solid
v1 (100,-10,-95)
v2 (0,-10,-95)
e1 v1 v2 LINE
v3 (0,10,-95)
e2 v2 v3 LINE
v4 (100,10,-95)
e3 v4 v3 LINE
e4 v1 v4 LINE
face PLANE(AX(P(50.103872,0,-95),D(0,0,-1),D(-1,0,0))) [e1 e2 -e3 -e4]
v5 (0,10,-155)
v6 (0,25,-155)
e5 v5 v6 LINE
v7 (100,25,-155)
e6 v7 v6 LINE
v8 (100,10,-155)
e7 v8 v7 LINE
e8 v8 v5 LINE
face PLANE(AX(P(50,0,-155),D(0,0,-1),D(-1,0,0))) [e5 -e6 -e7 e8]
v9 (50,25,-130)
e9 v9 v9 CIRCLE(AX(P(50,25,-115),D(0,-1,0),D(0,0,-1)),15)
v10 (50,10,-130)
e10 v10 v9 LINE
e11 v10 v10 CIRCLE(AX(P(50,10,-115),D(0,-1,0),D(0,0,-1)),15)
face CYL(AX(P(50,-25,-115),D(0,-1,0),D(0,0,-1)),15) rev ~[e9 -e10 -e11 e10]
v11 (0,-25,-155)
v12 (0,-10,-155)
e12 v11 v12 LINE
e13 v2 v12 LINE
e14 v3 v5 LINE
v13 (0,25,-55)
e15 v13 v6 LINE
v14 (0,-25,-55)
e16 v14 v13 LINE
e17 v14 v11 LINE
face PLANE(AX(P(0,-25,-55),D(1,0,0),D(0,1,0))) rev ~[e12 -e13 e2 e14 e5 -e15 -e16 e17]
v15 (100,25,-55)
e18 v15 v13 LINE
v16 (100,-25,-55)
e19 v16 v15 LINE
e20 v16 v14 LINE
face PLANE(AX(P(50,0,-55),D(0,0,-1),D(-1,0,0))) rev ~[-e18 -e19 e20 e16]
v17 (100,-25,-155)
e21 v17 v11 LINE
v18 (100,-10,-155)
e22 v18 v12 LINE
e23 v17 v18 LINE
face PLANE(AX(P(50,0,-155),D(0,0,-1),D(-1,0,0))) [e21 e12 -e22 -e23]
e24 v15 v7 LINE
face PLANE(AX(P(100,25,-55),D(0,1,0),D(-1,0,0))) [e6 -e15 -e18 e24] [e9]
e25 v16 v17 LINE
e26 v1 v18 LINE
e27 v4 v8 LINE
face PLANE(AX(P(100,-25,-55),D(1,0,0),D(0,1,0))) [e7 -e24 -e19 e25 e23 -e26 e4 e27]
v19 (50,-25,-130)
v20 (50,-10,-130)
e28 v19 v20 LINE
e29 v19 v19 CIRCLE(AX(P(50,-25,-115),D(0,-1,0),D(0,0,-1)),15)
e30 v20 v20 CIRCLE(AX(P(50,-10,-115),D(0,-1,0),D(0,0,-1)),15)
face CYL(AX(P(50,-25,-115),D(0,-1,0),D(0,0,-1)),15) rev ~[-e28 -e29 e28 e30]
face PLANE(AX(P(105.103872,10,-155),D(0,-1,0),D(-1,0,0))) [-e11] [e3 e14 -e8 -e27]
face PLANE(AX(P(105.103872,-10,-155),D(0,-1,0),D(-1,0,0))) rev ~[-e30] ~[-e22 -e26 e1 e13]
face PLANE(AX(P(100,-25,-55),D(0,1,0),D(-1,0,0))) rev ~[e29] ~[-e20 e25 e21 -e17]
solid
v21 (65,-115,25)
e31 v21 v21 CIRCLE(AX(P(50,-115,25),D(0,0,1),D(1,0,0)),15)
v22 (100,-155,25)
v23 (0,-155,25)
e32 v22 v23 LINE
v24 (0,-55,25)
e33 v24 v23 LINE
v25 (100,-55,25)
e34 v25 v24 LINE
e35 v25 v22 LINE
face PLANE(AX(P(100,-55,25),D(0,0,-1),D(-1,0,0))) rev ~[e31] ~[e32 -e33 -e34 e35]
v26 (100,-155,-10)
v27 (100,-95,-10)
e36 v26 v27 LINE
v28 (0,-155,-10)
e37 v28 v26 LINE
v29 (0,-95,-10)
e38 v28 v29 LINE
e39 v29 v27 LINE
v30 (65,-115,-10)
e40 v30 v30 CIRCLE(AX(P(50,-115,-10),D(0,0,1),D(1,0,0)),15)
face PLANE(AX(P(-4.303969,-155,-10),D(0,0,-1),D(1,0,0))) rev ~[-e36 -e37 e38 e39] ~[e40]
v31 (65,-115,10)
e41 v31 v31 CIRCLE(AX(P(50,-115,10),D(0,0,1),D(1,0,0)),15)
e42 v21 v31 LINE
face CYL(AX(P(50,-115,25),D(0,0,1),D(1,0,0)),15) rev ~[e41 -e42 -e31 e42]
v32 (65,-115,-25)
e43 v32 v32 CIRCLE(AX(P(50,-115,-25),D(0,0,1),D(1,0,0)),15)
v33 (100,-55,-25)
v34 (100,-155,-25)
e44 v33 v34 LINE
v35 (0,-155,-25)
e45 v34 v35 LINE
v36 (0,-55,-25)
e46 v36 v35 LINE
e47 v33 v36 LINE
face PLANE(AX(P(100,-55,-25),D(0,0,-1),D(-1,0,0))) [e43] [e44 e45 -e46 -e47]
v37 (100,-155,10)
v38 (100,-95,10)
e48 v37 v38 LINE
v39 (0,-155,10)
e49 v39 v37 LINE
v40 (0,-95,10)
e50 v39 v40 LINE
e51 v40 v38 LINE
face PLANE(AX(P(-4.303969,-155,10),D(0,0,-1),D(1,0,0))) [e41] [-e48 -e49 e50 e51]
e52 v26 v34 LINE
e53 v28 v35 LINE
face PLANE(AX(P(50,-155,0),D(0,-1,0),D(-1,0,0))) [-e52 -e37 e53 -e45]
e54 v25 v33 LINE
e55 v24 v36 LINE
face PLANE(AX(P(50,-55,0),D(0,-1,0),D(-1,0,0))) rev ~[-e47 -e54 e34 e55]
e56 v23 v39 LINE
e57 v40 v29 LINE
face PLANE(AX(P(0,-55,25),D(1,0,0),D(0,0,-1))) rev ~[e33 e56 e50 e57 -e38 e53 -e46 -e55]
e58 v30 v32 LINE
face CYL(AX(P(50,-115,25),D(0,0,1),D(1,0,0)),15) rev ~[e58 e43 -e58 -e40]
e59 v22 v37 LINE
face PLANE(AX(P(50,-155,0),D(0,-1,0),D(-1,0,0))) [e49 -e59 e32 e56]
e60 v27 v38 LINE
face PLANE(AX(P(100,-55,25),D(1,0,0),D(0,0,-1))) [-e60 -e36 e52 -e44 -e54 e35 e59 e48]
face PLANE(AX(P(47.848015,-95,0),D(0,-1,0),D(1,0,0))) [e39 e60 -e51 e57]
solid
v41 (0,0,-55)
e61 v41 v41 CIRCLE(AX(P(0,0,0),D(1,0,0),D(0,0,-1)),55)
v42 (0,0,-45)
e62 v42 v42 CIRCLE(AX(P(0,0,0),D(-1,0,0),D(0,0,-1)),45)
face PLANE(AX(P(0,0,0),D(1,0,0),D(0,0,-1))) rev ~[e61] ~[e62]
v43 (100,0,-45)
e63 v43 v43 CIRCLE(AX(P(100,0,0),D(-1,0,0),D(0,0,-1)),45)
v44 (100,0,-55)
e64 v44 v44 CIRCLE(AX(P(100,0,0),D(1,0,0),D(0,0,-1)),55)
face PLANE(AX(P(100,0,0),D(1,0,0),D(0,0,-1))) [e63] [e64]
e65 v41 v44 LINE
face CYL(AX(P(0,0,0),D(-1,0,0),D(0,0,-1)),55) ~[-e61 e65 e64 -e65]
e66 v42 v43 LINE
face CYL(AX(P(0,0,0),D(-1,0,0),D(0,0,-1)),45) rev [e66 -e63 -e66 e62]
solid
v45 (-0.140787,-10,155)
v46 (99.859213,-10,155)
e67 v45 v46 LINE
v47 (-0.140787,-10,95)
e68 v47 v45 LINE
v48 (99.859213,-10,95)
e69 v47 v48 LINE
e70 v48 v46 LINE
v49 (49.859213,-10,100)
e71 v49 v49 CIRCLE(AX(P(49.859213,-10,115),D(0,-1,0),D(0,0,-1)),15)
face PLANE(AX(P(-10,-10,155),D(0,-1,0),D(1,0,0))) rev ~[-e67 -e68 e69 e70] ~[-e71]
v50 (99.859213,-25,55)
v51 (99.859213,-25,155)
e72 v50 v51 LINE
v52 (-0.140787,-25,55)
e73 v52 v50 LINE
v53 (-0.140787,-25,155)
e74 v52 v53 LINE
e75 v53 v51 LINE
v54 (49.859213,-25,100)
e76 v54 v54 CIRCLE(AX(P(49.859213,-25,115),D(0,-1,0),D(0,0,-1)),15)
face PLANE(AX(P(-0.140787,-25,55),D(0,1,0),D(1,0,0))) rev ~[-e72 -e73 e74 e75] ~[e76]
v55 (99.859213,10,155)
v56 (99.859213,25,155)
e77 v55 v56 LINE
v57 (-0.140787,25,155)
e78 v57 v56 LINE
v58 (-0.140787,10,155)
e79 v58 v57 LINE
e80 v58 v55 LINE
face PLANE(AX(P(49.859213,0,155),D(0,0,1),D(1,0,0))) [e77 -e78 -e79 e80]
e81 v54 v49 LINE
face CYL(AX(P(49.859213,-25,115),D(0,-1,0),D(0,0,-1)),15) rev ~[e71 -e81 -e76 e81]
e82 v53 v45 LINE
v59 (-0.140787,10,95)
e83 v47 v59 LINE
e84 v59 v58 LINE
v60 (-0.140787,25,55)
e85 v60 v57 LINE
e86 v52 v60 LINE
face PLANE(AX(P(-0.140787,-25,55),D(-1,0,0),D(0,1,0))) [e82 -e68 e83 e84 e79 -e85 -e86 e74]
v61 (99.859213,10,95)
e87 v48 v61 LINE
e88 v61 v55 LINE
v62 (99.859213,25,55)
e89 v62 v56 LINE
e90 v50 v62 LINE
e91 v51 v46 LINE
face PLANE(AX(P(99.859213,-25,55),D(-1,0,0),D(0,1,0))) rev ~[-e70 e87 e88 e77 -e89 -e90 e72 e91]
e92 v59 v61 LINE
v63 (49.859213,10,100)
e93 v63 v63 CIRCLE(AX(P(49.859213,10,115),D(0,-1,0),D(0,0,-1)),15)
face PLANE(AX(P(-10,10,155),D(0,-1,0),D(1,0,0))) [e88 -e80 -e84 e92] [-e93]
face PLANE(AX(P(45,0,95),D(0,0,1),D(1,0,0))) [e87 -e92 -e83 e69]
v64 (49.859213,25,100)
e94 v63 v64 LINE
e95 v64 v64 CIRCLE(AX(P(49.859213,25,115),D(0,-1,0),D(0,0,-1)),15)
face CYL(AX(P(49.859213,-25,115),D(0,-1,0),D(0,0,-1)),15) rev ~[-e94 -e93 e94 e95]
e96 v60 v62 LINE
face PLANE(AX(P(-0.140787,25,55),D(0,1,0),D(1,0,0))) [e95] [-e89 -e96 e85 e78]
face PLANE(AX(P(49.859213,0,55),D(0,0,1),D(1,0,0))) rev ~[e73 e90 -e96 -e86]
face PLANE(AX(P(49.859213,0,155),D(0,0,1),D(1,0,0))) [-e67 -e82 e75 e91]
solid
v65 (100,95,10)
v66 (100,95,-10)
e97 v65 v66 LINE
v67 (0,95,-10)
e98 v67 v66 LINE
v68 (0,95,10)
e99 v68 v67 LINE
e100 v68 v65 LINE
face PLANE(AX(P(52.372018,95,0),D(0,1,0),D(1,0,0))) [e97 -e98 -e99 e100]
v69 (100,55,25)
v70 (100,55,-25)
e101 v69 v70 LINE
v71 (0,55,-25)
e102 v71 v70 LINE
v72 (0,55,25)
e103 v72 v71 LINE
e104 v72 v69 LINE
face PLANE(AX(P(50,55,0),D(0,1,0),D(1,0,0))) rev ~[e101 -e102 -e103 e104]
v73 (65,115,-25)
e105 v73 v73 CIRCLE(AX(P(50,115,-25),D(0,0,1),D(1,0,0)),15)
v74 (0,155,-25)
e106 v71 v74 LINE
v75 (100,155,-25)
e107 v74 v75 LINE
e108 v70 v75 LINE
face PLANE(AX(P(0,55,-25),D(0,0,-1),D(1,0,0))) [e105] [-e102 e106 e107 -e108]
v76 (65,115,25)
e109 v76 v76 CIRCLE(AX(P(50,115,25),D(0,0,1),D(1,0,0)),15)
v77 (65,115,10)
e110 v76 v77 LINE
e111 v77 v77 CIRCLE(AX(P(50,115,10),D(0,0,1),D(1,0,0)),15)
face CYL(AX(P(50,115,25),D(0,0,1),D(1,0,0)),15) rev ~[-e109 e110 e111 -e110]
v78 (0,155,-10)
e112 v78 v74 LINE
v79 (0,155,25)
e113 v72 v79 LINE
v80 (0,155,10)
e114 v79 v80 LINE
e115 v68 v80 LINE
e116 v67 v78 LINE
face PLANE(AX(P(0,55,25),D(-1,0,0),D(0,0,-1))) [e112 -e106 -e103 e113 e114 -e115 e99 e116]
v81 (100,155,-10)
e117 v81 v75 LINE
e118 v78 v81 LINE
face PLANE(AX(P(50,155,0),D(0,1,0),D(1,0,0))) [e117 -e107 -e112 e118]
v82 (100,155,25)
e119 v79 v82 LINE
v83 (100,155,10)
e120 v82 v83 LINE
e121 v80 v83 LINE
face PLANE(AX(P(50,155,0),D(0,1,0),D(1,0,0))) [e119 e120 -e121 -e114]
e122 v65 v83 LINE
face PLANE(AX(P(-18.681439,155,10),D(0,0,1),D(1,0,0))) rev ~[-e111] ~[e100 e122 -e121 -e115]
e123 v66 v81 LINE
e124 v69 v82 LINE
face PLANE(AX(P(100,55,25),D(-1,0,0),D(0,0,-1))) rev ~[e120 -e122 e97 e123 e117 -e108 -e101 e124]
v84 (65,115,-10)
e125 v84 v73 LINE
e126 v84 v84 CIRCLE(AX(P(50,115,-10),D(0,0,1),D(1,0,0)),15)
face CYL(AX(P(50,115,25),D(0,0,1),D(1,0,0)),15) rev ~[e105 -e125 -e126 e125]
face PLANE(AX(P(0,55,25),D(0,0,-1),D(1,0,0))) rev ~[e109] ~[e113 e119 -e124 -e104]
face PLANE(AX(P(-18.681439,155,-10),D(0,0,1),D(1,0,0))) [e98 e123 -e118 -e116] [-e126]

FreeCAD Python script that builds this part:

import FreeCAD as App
import Part
import Sketcher


def faces_at(feature, points):
    """Names of the faces that lie closest to the given points."""
    faces = feature.Shape.Faces
    near = lambda p: min(range(len(faces)), key=lambda i: faces[i].distToShape(Part.Vertex(*p))[0])
    return sorted({f"Face{near(p) + 1}" for p in points})

doc = App.newDocument("Part")
body = doc.addObject("PartDesign::Body", "Body")

sketch1 = body.newObject("Sketcher::SketchObject", "Sketch")
sketch1.AttachmentSupport = (doc.getObject("YZ_Plane"), [""])
sketch1.MapMode = "FlatFace"
sketch1.addGeometry(Part.Circle(App.Vector(0, 0, 0), App.Vector(0, 0, 1), 55), False)
sketch1.addConstraint([
    Sketcher.Constraint("Coincident", 0, 3, -1, 1),
    Sketcher.Constraint("Diameter", 0, 110.0),
])
pad1 = body.newObject("PartDesign::Pad", "Pad")
pad1.Profile = sketch1
pad1.Length = 100
doc.recompute()

thickness = body.newObject("PartDesign::Thickness", "Thickness")
thickness.Base = (pad1, faces_at(pad1, [(100, 0, 0), (0, 0, 0)]))
thickness.Value = 10
thickness.Reversed = True
thickness.Join = "Intersection"
body2 = doc.addObject("PartDesign::Body", "Body001")

sketch2 = body2.newObject("Sketcher::SketchObject", "Sketch001")
sketch2.AttachmentSupport = (doc.getObject("XY_Plane001"), [""])
sketch2.MapMode = "FlatFace"
sketch2.AttachmentOffset = App.Placement(App.Vector(0, 0, -55), App.Rotation())
sketch2.addGeometry([
    Part.LineSegment(App.Vector(100, 25, 0), App.Vector(100, -25, 0)),
    Part.LineSegment(App.Vector(100, -25, 0), App.Vector(0, -25, 0)),
    Part.LineSegment(App.Vector(0, -25, 0), App.Vector(0, 25, 0)),
    Part.LineSegment(App.Vector(0, 25, 0), App.Vector(100, 25, 0)),
], False)
sketch2.addConstraint([
    Sketcher.Constraint("Coincident", 0, 2, 1, 1),
    Sketcher.Constraint("Coincident", 1, 2, 2, 1),
    Sketcher.Constraint("Coincident", 2, 2, 3, 1),
    Sketcher.Constraint("Coincident", 3, 2, 0, 1),
    Sketcher.Constraint("Vertical", 0),
    Sketcher.Constraint("Horizontal", 1),
    Sketcher.Constraint("Vertical", 2),
    Sketcher.Constraint("Horizontal", 3),
    Sketcher.Constraint("Symmetric", 1, 2, 2, 2, -1, 1),
    Sketcher.Constraint("DistanceX", 1, 2, 1, 1, 100.0),
    Sketcher.Constraint("DistanceY", 0, 2, 0, 1, 50.0),
])
pad2 = body2.newObject("PartDesign::Pad", "Pad001")
pad2.Profile = sketch2
pad2.Length = 100
pad2.Reversed = True

sketch3 = body2.newObject("Sketcher::SketchObject", "Sketch002")
sketch3.AttachmentSupport = (doc.getObject("XY_Plane001"), [""])
sketch3.MapMode = "FlatFace"
sketch3.AttachmentOffset = App.Placement(App.Vector(0, 0, -155), App.Rotation())
sketch3.addGeometry([
    Part.LineSegment(App.Vector(105, 10, 0), App.Vector(105, -10, 0)),
    Part.LineSegment(App.Vector(105, -10, 0), App.Vector(-5, -10, 0)),
    Part.LineSegment(App.Vector(-5, -10, 0), App.Vector(-5, 10, 0)),
    Part.LineSegment(App.Vector(-5, 10, 0), App.Vector(105, 10, 0)),
], False)
sketch3.addConstraint([
    Sketcher.Constraint("Coincident", 0, 2, 1, 1),
    Sketcher.Constraint("Coincident", 1, 2, 2, 1),
    Sketcher.Constraint("Coincident", 2, 2, 3, 1),
    Sketcher.Constraint("Coincident", 3, 2, 0, 1),
    Sketcher.Constraint("Vertical", 0),
    Sketcher.Constraint("Horizontal", 1),
    Sketcher.Constraint("Vertical", 2),
    Sketcher.Constraint("Horizontal", 3),
    Sketcher.Constraint("DistanceX", 1, 2, 1, 1, 110.0),
    Sketcher.Constraint("DistanceY", 0, 2, 0, 1, 20.0),
    Sketcher.Constraint("DistanceY", 0, 2, -1, 1, 10.0),
    Sketcher.Constraint("DistanceX", -1, 1, 0, 2, 105.103872),
])
pocket1 = body2.newObject("PartDesign::Pocket", "Pocket")
pocket1.Profile = sketch3
pocket1.Length = 60
pocket1.Reversed = True

sketch4 = body2.newObject("Sketcher::SketchObject", "Sketch003")
sketch4.AttachmentSupport = (doc.getObject("XZ_Plane001"), [""])
sketch4.MapMode = "FlatFace"
sketch4.AttachmentOffset = App.Placement(App.Vector(0, 0, 25), App.Rotation())
sketch4.addGeometry(Part.Circle(App.Vector(50, -115, 0), App.Vector(0, 0, 1), 15), False)
sketch4.addConstraint([
    Sketcher.Constraint("Diameter", 0, 30.0),
    Sketcher.Constraint("DistanceX", -1, 1, 0, 3, 50.0),
    Sketcher.Constraint("DistanceY", 0, 3, -1, 1, 115.0),
])
pocket2 = body2.newObject("PartDesign::Pocket", "Pocket001")
pocket2.Profile = sketch4
pocket2.Length = 60
body3 = doc.addObject("PartDesign::Body", "Body002")

sketch5 = body3.newObject("Sketcher::SketchObject", "Sketch004")
sketch5.AttachmentSupport = (doc.getObject("XY_Plane002"), [""])
sketch5.MapMode = "FlatFace"
sketch5.AttachmentOffset = App.Placement(App.Vector(0, 0, 55), App.Rotation())
sketch5.addGeometry([
    Part.LineSegment(App.Vector(0, 25, 0), App.Vector(0, -25, 0)),
    Part.LineSegment(App.Vector(0, -25, 0), App.Vector(100, -25, 0)),
    Part.LineSegment(App.Vector(100, -25, 0), App.Vector(100, 25, 0)),
    Part.LineSegment(App.Vector(100, 25, 0), App.Vector(0, 25, 0)),
], False)
sketch5.addConstraint([
    Sketcher.Constraint("Coincident", 0, 2, 1, 1),
    Sketcher.Constraint("Coincident", 1, 2, 2, 1),
    Sketcher.Constraint("Coincident", 2, 2, 3, 1),
    Sketcher.Constraint("Coincident", 3, 2, 0, 1),
    Sketcher.Constraint("Vertical", 0),
    Sketcher.Constraint("Horizontal", 1),
    Sketcher.Constraint("Vertical", 2),
    Sketcher.Constraint("Horizontal", 3),
    Sketcher.Constraint("DistanceX", 1, 1, 1, 2, 100.0),
    Sketcher.Constraint("DistanceY", 0, 2, 0, 1, 50.0),
    Sketcher.Constraint("DistanceY", 0, 2, -1, 1, 25.0),
    Sketcher.Constraint("DistanceX", 0, 2, -1, 1, 0.140787),
])
pad3 = body3.newObject("PartDesign::Pad", "Pad002")
pad3.Profile = sketch5
pad3.Length = 100

sketch6 = body3.newObject("Sketcher::SketchObject", "Sketch005")
sketch6.AttachmentSupport = (doc.getObject("XY_Plane002"), [""])
sketch6.MapMode = "FlatFace"
sketch6.AttachmentOffset = App.Placement(App.Vector(0, 0, 155), App.Rotation())
sketch6.addGeometry([
    Part.LineSegment(App.Vector(-10, 10, 0), App.Vector(-10, -10, 0)),
    Part.LineSegment(App.Vector(-10, -10, 0), App.Vector(100, -10, 0)),
    Part.LineSegment(App.Vector(100, -10, 0), App.Vector(100, 10, 0)),
    Part.LineSegment(App.Vector(100, 10, 0), App.Vector(-10, 10, 0)),
], False)
sketch6.addConstraint([
    Sketcher.Constraint("Coincident", 0, 2, 1, 1),
    Sketcher.Constraint("Coincident", 1, 2, 2, 1),
    Sketcher.Constraint("Coincident", 2, 2, 3, 1),
    Sketcher.Constraint("Coincident", 3, 2, 0, 1),
    Sketcher.Constraint("Vertical", 0),
    Sketcher.Constraint("Horizontal", 1),
    Sketcher.Constraint("Vertical", 2),
    Sketcher.Constraint("Horizontal", 3),
    Sketcher.Constraint("DistanceX", 1, 1, 1, 2, 110.0),
    Sketcher.Constraint("DistanceY", 0, 2, 0, 1, 20.0),
    Sketcher.Constraint("DistanceX", 0, 2, -1, 1, 10.0),
    Sketcher.Constraint("DistanceY", 0, 2, -1, 1, 10.0),
])
pocket3 = body3.newObject("PartDesign::Pocket", "Pocket002")
pocket3.Profile = sketch6
pocket3.Length = 60

sketch7 = body3.newObject("Sketcher::SketchObject", "Sketch006")
sketch7.AttachmentSupport = (doc.getObject("XZ_Plane002"), [""])
sketch7.MapMode = "FlatFace"
sketch7.AttachmentOffset = App.Placement(App.Vector(0, 0, 25), App.Rotation())
sketch7.addGeometry(Part.Circle(App.Vector(50, 115, 0), App.Vector(0, 0, 1), 15), False)
sketch7.addConstraint([
    Sketcher.Constraint("Diameter", 0, 30.0),
    Sketcher.Constraint("DistanceY", -1, 1, 0, 3, 115.0),
    Sketcher.Constraint("DistanceX", -1, 1, 0, 3, 49.859213),
])
pocket4 = body3.newObject("PartDesign::Pocket", "Pocket003")
pocket4.Profile = sketch7
pocket4.Length = 60
body4 = doc.addObject("PartDesign::Body", "Body003")

sketch8 = body4.newObject("Sketcher::SketchObject", "Sketch007")
sketch8.AttachmentSupport = (doc.getObject("XZ_Plane003"), [""])
sketch8.MapMode = "FlatFace"
sketch8.AttachmentOffset = App.Placement(App.Vector(0, 0, 55), App.Rotation())
sketch8.addGeometry([
    Part.LineSegment(App.Vector(100, -25, 0), App.Vector(100, 25, 0)),
    Part.LineSegment(App.Vector(100, 25, 0), App.Vector(0, 25, 0)),
    Part.LineSegment(App.Vector(0, 25, 0), App.Vector(0, -25, 0)),
    Part.LineSegment(App.Vector(0, -25, 0), App.Vector(100, -25, 0)),
], False)
sketch8.addConstraint([
    Sketcher.Constraint("Coincident", 0, 2, 1, 1),
    Sketcher.Constraint("Coincident", 1, 2, 2, 1),
    Sketcher.Constraint("Coincident", 2, 2, 3, 1),
    Sketcher.Constraint("Coincident", 3, 2, 0, 1),
    Sketcher.Constraint("Vertical", 0),
    Sketcher.Constraint("Horizontal", 1),
    Sketcher.Constraint("Vertical", 2),
    Sketcher.Constraint("Horizontal", 3),
    Sketcher.Constraint("Symmetric", 1, 2, 2, 2, -1, 1),
    Sketcher.Constraint("DistanceX", 1, 2, 1, 1, 100.0),
    Sketcher.Constraint("DistanceY", 0, 1, 0, 2, 50.0),
])
pad4 = body4.newObject("PartDesign::Pad", "Pad003")
pad4.Profile = sketch8
pad4.Length = 100

sketch9 = body4.newObject("Sketcher::SketchObject", "Sketch008")
sketch9.AttachmentSupport = (doc.getObject("XZ_Plane003"), [""])
sketch9.MapMode = "FlatFace"
sketch9.AttachmentOffset = App.Placement(App.Vector(0, 0, 155), App.Rotation())
sketch9.addGeometry([
    Part.LineSegment(App.Vector(-4, 10, 0), App.Vector(-4, -10, 0)),
    Part.LineSegment(App.Vector(-4, -10, 0), App.Vector(100, -10, 0)),
    Part.LineSegment(App.Vector(100, -10, 0), App.Vector(100, 10, 0)),
    Part.LineSegment(App.Vector(100, 10, 0), App.Vector(-4, 10, 0)),
], False)
sketch9.addConstraint([
    Sketcher.Constraint("Coincident", 0, 2, 1, 1),
    Sketcher.Constraint("Coincident", 1, 2, 2, 1),
    Sketcher.Constraint("Coincident", 2, 2, 3, 1),
    Sketcher.Constraint("Coincident", 3, 2, 0, 1),
    Sketcher.Constraint("Vertical", 0),
    Sketcher.Constraint("Horizontal", 1),
    Sketcher.Constraint("Vertical", 2),
    Sketcher.Constraint("Horizontal", 3),
    Sketcher.Constraint("DistanceY", 0, 2, 0, 1, 20.0),
    Sketcher.Constraint("DistanceY", 0, 2, -1, 1, 10.0),
    Sketcher.Constraint("DistanceX", -1, 1, 1, 2, 100.0),
    Sketcher.Constraint("DistanceX", 1, 1, 1, 2, 104.303969),
])
pocket5 = body4.newObject("PartDesign::Pocket", "Pocket004")
pocket5.Profile = sketch9
pocket5.Length = 60

sketch10 = body4.newObject("Sketcher::SketchObject", "Sketch009")
sketch10.AttachmentSupport = (doc.getObject("XY_Plane003"), [""])
sketch10.MapMode = "FlatFace"
sketch10.AttachmentOffset = App.Placement(App.Vector(0, 0, 25), App.Rotation())
sketch10.addGeometry(Part.Circle(App.Vector(50, -115, 0), App.Vector(0, 0, 1), 15), False)
sketch10.addConstraint([
    Sketcher.Constraint("Diameter", 0, 30.0),
    Sketcher.Constraint("DistanceX", -1, 1, 0, 3, 50.0),
    Sketcher.Constraint("DistanceY", 0, 3, -1, 1, 115.0),
])
pocket6 = body4.newObject("PartDesign::Pocket", "Pocket005")
pocket6.Profile = sketch10
pocket6.Length = 60
body5 = doc.addObject("PartDesign::Body", "Body004")

sketch11 = body5.newObject("Sketcher::SketchObject", "Sketch010")
sketch11.AttachmentSupport = (doc.getObject("XZ_Plane004"), [""])
sketch11.MapMode = "FlatFace"
sketch11.AttachmentOffset = App.Placement(App.Vector(0, 0, -55), App.Rotation())
sketch11.addGeometry([
    Part.LineSegment(App.Vector(0, -25, 0), App.Vector(0, 25, 0)),
    Part.LineSegment(App.Vector(0, 25, 0), App.Vector(100, 25, 0)),
    Part.LineSegment(App.Vector(100, 25, 0), App.Vector(100, -25, 0)),
    Part.LineSegment(App.Vector(100, -25, 0), App.Vector(0, -25, 0)),
], False)
sketch11.addConstraint([
    Sketcher.Constraint("Coincident", 0, 2, 1, 1),
    Sketcher.Constraint("Coincident", 1, 2, 2, 1),
    Sketcher.Constraint("Coincident", 2, 2, 3, 1),
    Sketcher.Constraint("Coincident", 3, 2, 0, 1),
    Sketcher.Constraint("Vertical", 0),
    Sketcher.Constraint("Horizontal", 1),
    Sketcher.Constraint("Vertical", 2),
    Sketcher.Constraint("Horizontal", 3),
    Sketcher.Constraint("Symmetric", 0, 2, 3, 2, -1, 1),
    Sketcher.Constraint("DistanceX", 1, 1, 1, 2, 100.0),
    Sketcher.Constraint("DistanceY", 0, 1, 0, 2, 50.0),
])
pad5 = body5.newObject("PartDesign::Pad", "Pad004")
pad5.Profile = sketch11
pad5.Length = 100
pad5.Reversed = True

sketch12 = body5.newObject("Sketcher::SketchObject", "Sketch011")
sketch12.AttachmentSupport = (doc.getObject("XZ_Plane004"), [""])
sketch12.MapMode = "FlatFace"
sketch12.AttachmentOffset = App.Placement(App.Vector(0, 0, -155), App.Rotation())
sketch12.addGeometry([
    Part.LineSegment(App.Vector(-19, -10, 0), App.Vector(-19, 10, 0)),
    Part.LineSegment(App.Vector(-19, 10, 0), App.Vector(123, 10, 0)),
    Part.LineSegment(App.Vector(123, 10, 0), App.Vector(123, -10, 0)),
    Part.LineSegment(App.Vector(123, -10, 0), App.Vector(-19, -10, 0)),
], False)
sketch12.addConstraint([
    Sketcher.Constraint("Coincident", 0, 2, 1, 1),
    Sketcher.Constraint("Coincident", 1, 2, 2, 1),
    Sketcher.Constraint("Coincident", 2, 2, 3, 1),
    Sketcher.Constraint("Coincident", 3, 2, 0, 1),
    Sketcher.Constraint("Vertical", 0),
    Sketcher.Constraint("Horizontal", 1),
    Sketcher.Constraint("Vertical", 2),
    Sketcher.Constraint("Horizontal", 3),
    Sketcher.Constraint("DistanceY", 0, 1, 0, 2, 20.0),
    Sketcher.Constraint("DistanceY", -1, 1, 0, 2, 10.0),
    Sketcher.Constraint("DistanceX", 1, 1, 1, 2, 142.106914),
    Sketcher.Constraint("DistanceX", 0, 2, -1, 1, 18.681439),
])
pocket7 = body5.newObject("PartDesign::Pocket", "Pocket006")
pocket7.Profile = sketch12
pocket7.Length = 60
pocket7.Reversed = True

sketch13 = body5.newObject("Sketcher::SketchObject", "Sketch012")
sketch13.AttachmentSupport = (doc.getObject("XY_Plane004"), [""])
sketch13.MapMode = "FlatFace"
sketch13.AttachmentOffset = App.Placement(App.Vector(0, 0, 25), App.Rotation())
sketch13.addGeometry(Part.Circle(App.Vector(50, 115, 0), App.Vector(0, 0, 1), 15), False)
sketch13.addConstraint([
    Sketcher.Constraint("Diameter", 0, 30.0),
    Sketcher.Constraint("DistanceX", -1, 1, 0, 3, 50.0),
    Sketcher.Constraint("DistanceY", -1, 1, 0, 3, 115.0),
])
pocket8 = body5.newObject("PartDesign::Pocket", "Pocket007")
pocket8.Profile = sketch13
pocket8.Length = 60

doc.recompute()
